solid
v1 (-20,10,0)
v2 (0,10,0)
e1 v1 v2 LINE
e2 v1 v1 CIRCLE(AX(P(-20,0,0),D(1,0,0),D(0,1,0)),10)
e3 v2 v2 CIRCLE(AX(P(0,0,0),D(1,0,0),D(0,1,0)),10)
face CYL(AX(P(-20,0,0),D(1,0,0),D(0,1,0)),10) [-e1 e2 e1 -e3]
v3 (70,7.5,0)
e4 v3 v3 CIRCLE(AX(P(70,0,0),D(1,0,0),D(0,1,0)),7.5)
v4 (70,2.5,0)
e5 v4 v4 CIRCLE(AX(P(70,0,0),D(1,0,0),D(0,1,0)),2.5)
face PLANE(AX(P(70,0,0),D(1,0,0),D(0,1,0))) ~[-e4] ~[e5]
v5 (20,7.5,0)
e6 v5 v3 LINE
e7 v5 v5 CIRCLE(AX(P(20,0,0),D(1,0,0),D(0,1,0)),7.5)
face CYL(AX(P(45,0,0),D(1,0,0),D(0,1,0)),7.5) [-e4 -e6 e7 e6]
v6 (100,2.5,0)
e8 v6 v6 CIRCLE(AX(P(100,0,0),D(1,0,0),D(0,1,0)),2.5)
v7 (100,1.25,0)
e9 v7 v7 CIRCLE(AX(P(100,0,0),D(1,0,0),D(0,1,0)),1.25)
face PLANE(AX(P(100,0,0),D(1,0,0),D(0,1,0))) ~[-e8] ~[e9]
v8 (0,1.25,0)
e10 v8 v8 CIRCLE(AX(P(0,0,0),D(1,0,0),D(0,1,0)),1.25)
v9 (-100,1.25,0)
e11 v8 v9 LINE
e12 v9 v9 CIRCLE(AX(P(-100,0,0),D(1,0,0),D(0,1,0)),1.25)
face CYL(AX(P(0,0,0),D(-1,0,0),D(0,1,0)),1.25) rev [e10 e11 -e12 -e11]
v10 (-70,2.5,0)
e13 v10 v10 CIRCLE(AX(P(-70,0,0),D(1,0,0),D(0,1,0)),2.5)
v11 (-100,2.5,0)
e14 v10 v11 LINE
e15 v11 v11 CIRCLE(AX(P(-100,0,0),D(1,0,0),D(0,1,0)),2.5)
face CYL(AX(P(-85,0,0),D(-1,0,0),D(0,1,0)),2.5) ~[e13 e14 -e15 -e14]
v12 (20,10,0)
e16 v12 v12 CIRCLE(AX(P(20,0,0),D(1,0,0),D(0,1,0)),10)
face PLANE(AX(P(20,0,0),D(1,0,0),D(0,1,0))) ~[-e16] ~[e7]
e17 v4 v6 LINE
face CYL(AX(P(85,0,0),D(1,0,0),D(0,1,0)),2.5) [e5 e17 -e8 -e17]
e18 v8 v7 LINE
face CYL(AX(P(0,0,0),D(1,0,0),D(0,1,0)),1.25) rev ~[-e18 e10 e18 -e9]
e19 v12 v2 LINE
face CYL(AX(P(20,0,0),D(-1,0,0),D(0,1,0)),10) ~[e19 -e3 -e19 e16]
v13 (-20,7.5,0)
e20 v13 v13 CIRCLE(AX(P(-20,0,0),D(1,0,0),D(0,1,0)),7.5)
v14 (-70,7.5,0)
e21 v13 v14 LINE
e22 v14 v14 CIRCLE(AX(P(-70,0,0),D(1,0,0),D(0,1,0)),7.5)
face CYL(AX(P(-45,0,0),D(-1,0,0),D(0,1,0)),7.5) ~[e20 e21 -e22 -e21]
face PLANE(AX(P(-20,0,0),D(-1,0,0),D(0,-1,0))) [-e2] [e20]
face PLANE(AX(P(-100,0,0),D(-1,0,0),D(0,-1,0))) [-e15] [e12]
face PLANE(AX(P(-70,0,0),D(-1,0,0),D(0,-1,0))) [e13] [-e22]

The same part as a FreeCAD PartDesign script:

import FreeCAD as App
import Part
import Sketcher
from FreeCAD import Vector

doc = App.newDocument("Part")
params = doc.addObject("Spreadsheet::Sheet", "Params")
for row, (alias, value) in enumerate([
    ("sketch1_width", "50 mm"),
    ("sketch1_width2", "20 mm"),
    ("sketch1_width3", "100 mm"),
    ("sketch1_height", "5 mm"),
    ("sketch1_height2", "2.5 mm"),
    ("revolution_angle", "360 deg"),
], start=1):
    params.set(f"A{row}", alias)
    params.set(f"B{row}", "=" + value)
    params.setAlias(f"B{row}", alias)

body = doc.addObject("PartDesign::Body", "Body")

sketch1 = body.newObject("Sketcher::SketchObject", "Sketch")
sketch1.AttachmentSupport = (doc.getObject("XY_Plane"), [""])
sketch1.MapMode = "FlatFace"
sketch1.addGeometry(Part.LineSegment(Vector(70, 2.5, 0), Vector(70, 7.5, 0)), False)
sketch1.addGeometry(Part.LineSegment(Vector(70, 7.5, 0), Vector(20, 7.5, 0)), False)
sketch1.addGeometry(Part.LineSegment(Vector(20, 7.5, 0), Vector(20, 10, 0)), False)
sketch1.addGeometry(Part.LineSegment(Vector(20, 10, 0), Vector(0, 10, 0)), False)
sketch1.addGeometry(Part.LineSegment(Vector(0, 10, 0), Vector(0, 1.2, 0)), False)
sketch1.addGeometry(Part.LineSegment(Vector(0, 1.2, 0), Vector(100, 1.2, 0)), False)
sketch1.addGeometry(Part.LineSegment(Vector(100, 1.2, 0), Vector(100, 2.5, 0)), False)
sketch1.addGeometry(Part.LineSegment(Vector(100, 2.5, 0), Vector(70, 2.5, 0)), False)
sketch1.addConstraint(Sketcher.Constraint("Coincident", 0, 2, 1, 1))
sketch1.addConstraint(Sketcher.Constraint("Coincident", 1, 2, 2, 1))
sketch1.addConstraint(Sketcher.Constraint("Coincident", 2, 2, 3, 1))
sketch1.addConstraint(Sketcher.Constraint("Coincident", 3, 2, 4, 1))
sketch1.addConstraint(Sketcher.Constraint("Coincident", 4, 2, 5, 1))
sketch1.addConstraint(Sketcher.Constraint("Coincident", 5, 2, 6, 1))
sketch1.addConstraint(Sketcher.Constraint("Coincident", 6, 2, 7, 1))
sketch1.addConstraint(Sketcher.Constraint("Coincident", 7, 2, 0, 1))
sketch1.addConstraint(Sketcher.Constraint("Vertical", 0))
sketch1.addConstraint(Sketcher.Constraint("Horizontal", 1))
sketch1.addConstraint(Sketcher.Constraint("Vertical", 2))
sketch1.addConstraint(Sketcher.Constraint("Horizontal", 3))
sketch1.addConstraint(Sketcher.Constraint("Vertical", 4))
sketch1.addConstraint(Sketcher.Constraint("Horizontal", 5))
sketch1.addConstraint(Sketcher.Constraint("Vertical", 6))
sketch1.addConstraint(Sketcher.Constraint("Horizontal", 7))
sketch1.addConstraint(Sketcher.Constraint("PointOnObject", 3, 2, -2))
sketch1.addConstraint(Sketcher.Constraint("DistanceX", 1, 2, 1, 1, 50.0))
sketch1.addConstraint(Sketcher.Constraint("DistanceX", 3, 2, 3, 1, 20.0))
sketch1.addConstraint(Sketcher.Constraint("DistanceX", 5, 1, 5, 2, 100.0))
sketch1.addConstraint(Sketcher.Constraint("DistanceY", 0, 1, 0, 2, 5.0))
sketch1.addConstraint(Sketcher.Constraint("DistanceY", 2, 1, 2, 2, 2.5))
sketch1.addConstraint(Sketcher.Constraint("DistanceY", -1, 1, 2, 2, 10.0))
sketch1.addConstraint(Sketcher.Constraint("DistanceY", 4, 2, 4, 1, 8.75))
sketch1.setExpression("Constraints[17]", "Params.sketch1_width")
sketch1.setExpression("Constraints[18]", "Params.sketch1_width2")
sketch1.setExpression("Constraints[19]", "Params.sketch1_width3")
sketch1.setExpression("Constraints[20]", "Params.sketch1_height")
sketch1.setExpression("Constraints[21]", "Params.sketch1_height2")
revolution = body.newObject("PartDesign::Revolution", "Revolution")
revolution.Profile = sketch1
revolution.ReferenceAxis = (sketch1, ["H_Axis"])
revolution.setExpression("Angle", "Params.revolution_angle")
body2 = doc.addObject("PartDesign::Body", "Body001")
doc.recompute()

body2.BaseFeature = body
doc.recompute()

mirroring = doc.addObject("Part::Mirroring", "Mirroring")
mirroring.Source = body
mirroring.Base = Vector(0, 0, 0)
mirroring.Normal = Vector(-1, 0, 0)
body3 = doc.addObject("PartDesign::Body", "Body002")
body3.BaseFeature = mirroring
boolean = body2.newObject("PartDesign::Boolean", "Boolean")
boolean.Type = "Fuse"
boolean.addObjects([body3])
doc.recompute()
mirroring.Visibility = False

doc.recompute()
